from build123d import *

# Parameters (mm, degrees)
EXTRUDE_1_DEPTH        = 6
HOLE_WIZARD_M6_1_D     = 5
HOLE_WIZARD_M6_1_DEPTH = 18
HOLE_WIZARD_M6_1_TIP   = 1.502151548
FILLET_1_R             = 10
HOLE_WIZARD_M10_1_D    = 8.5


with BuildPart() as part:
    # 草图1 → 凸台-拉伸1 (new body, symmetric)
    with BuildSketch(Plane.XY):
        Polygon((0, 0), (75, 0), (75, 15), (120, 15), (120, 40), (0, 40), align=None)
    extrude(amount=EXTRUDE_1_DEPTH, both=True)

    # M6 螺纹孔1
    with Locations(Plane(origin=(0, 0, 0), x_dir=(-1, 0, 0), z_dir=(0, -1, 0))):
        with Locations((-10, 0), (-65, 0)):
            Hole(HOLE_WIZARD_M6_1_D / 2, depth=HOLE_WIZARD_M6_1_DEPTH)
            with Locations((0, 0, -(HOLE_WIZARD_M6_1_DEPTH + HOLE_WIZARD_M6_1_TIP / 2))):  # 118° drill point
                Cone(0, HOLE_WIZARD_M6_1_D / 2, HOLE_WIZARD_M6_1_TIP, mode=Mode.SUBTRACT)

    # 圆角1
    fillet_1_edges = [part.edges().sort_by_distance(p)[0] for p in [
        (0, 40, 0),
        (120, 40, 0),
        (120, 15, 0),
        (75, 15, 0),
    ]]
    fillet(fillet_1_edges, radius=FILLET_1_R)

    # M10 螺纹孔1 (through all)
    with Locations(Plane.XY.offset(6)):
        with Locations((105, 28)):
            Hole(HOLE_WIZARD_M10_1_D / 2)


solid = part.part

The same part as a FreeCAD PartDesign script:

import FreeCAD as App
import Part
import Sketcher
from FreeCAD import Vector


def edges_at(feature, points):
    """Names of the edges that pass closest to the given points."""
    edges = feature.Shape.Edges
    near = lambda p: min(range(len(edges)), key=lambda i: edges[i].distToShape(Part.Vertex(*p))[0])
    return sorted({f"Edge{near(p) + 1}" for p in points})

doc = App.newDocument("Part")
body = doc.addObject("PartDesign::Body", "Body")

sketch1 = doc.addObject("Sketcher::SketchObject", "Sketch")
body.addObject(sketch1)
sketch1.AttachmentSupport = (doc.XY_Plane, [""])
sketch1.MapMode = "FlatFace"
sketch1.addGeometry([
    Part.LineSegment(Vector(0, 0, 0), Vector(75, 0, 0)),
    Part.LineSegment(Vector(75, 0, 0), Vector(75, 15, 0)),
    Part.LineSegment(Vector(75, 15, 0), Vector(120, 15, 0)),
    Part.LineSegment(Vector(120, 15, 0), Vector(120, 40, 0)),
    Part.LineSegment(Vector(120, 40, 0), Vector(0, 40, 0)),
    Part.LineSegment(Vector(0, 40, 0), Vector(0, 0, 0)),
], False)
sketch1.addConstraint([
    Sketcher.Constraint("Coincident", 0, 2, 1, 1),
    Sketcher.Constraint("Coincident", 1, 2, 2, 1),
    Sketcher.Constraint("Coincident", 2, 2, 3, 1),
    Sketcher.Constraint("Coincident", 3, 2, 4, 1),
    Sketcher.Constraint("Coincident", 4, 2, 5, 1),
    Sketcher.Constraint("Coincident", 5, 2, 0, 1),
    Sketcher.Constraint("Horizontal", 0),
    Sketcher.Constraint("Vertical", 1),
    Sketcher.Constraint("Horizontal", 2),
    Sketcher.Constraint("Vertical", 3),
    Sketcher.Constraint("Horizontal", 4),
    Sketcher.Constraint("Vertical", 5),
    Sketcher.Constraint("Coincident", 5, 2, -1, 1),
    Sketcher.Constraint("DistanceX", 0, 1, 0, 2, 75.0),
    Sketcher.Constraint("DistanceX", 2, 1, 2, 2, 45.0),
    Sketcher.Constraint("DistanceY", 1, 1, 1, 2, 15.0),
    Sketcher.Constraint("DistanceY", 3, 1, 3, 2, 25.0),
])
pad1 = doc.addObject("PartDesign::Pad", "Pad")
body.addObject(pad1)
pad1.Profile = sketch1
pad1.Length = 12
pad1.Midplane = True

sketch2 = doc.addObject("Sketcher::SketchObject", "Sketch001")
body.addObject(sketch2)
sketch2.AttachmentSupport = (doc.XZ_Plane, [""])
sketch2.MapMode = "FlatFace"
sketch2.addGeometry([
    Part.Circle(Vector(10, 0, 0), Vector(0, 0, 1), 2.5),
    Part.Circle(Vector(65, 0, 0), Vector(0, 0, 1), 2.5),
], False)
sketch2.addConstraint([
    Sketcher.Constraint("Equal", 0, 1),
    Sketcher.Constraint("PointOnObject", 0, 3, -1),
    Sketcher.Constraint("PointOnObject", 1, 3, -1),
    Sketcher.Constraint("Diameter", 0, 5.0),
    Sketcher.Constraint("DistanceX", -1, 1, 0, 3, 10.0),
    Sketcher.Constraint("DistanceX", -1, 1, 1, 3, 65.0),
])
doc.recompute()
hole = doc.addObject("PartDesign::Hole", "Hole")
body.addObject(hole)
hole.Profile = sketch2
hole.ThreadType = "None"
hole.Diameter = 5
hole.DepthType = "Dimension"
hole.Depth = 18
hole.DrillPoint = "Angled"
hole.DrillPointAngle = 118
doc.recompute()

fillet = doc.addObject("PartDesign::Fillet", "Fillet")
body.addObject(fillet)
fillet.Base = (hole, edges_at(hole, [
    (0, 40, 0),
    (120, 40, 0),
    (120, 15, 0),
    (75, 15, 0),
]))
fillet.Radius = 10

sketch3 = doc.addObject("Sketcher::SketchObject", "Sketch002")
body.addObject(sketch3)
sketch3.AttachmentSupport = (doc.XY_Plane, [""])
sketch3.MapMode = "FlatFace"
sketch3.AttachmentOffset = App.Placement(Vector(0, 0, 6), App.Rotation())
sketch3.addGeometry(Part.Circle(Vector(105, 28, 0), Vector(0, 0, 1), 4.2), False)
sketch3.addConstraint([
    Sketcher.Constraint("Diameter", 0, 8.5),
    Sketcher.Constraint("DistanceX", -1, 1, 0, 3, 105.0),
    Sketcher.Constraint("DistanceY", -1, 1, 0, 3, 28.0),
])
doc.recompute()
hole2 = doc.addObject("PartDesign::Hole", "Hole001")
body.addObject(hole2)
hole2.Profile = sketch3
hole2.ThreadType = "None"
hole2.Diameter = 8.5
hole2.DepthType = "ThroughAll"

doc.recompute()
